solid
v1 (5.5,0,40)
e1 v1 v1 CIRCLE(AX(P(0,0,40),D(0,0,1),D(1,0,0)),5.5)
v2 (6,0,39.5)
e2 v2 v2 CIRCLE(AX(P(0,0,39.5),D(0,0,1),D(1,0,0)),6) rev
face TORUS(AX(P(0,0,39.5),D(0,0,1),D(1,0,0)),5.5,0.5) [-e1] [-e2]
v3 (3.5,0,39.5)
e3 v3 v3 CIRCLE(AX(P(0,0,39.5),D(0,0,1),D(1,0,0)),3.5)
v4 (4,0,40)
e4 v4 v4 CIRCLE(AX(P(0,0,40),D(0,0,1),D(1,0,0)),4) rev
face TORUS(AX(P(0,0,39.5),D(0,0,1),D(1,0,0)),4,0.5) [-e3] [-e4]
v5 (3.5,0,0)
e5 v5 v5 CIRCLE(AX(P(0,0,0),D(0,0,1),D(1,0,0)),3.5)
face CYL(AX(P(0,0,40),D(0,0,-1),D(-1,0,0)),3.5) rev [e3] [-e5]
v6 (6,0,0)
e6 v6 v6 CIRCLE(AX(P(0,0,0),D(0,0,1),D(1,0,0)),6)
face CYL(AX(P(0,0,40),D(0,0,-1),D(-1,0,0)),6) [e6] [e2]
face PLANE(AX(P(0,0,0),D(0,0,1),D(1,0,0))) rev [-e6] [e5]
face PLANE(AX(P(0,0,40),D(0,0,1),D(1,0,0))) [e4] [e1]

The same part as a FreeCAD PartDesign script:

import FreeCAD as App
import Part
import Sketcher
from FreeCAD import Vector
Q = App.Units.Quantity


def edges_at(feature, points):
    """Names of the edges that pass closest to the given points."""
    edges = feature.Shape.Edges
    near = lambda p: min(range(len(edges)), key=lambda i: edges[i].distToShape(Part.Vertex(*p))[0])
    return sorted({f"Edge{near(p) + 1}" for p in points})

doc = App.newDocument("Part")
body = doc.addObject("PartDesign::Body", "Body")

# Sketch on XY plane
sketch1 = doc.addObject("Sketcher::SketchObject", "Sketch")
body.addObject(sketch1)
sketch1.AttachmentSupport = (doc.XY_Plane, [""])
sketch1.MapMode = "FlatFace"
sketch1.addGeometry([
    Part.Circle(Vector(0, 0, 0), Vector(0, 0, 1), 6),
    Part.Circle(Vector(0, 0, 0), Vector(0, 0, 1), 3.5),
], False)
sketch1.addConstraint([
    Sketcher.Constraint("Coincident", 0, 3, -1, 1),
    Sketcher.Constraint("Coincident", 1, 3, -1, 1),
    Sketcher.Constraint("Diameter", 0, Q("12 mm")),
    Sketcher.Constraint("Diameter", 1, Q("7 mm")),
])
pad1 = doc.addObject("PartDesign::Pad", "Pad")
body.addObject(pad1)
pad1.Profile = sketch1
pad1.Length = 40
doc.recompute()

fillet = doc.addObject("PartDesign::Fillet", "Fillet")
body.addObject(fillet)
fillet.Base = (pad1, edges_at(pad1, [(-6, 0, 40)]))
fillet.Radius = 0.5
doc.recompute()

fillet2 = doc.addObject("PartDesign::Fillet", "Fillet001")
body.addObject(fillet2)
fillet2.Base = (fillet, edges_at(fillet, [(-3.5, 0, 40)]))
fillet2.Radius = 0.5

doc.recompute()
